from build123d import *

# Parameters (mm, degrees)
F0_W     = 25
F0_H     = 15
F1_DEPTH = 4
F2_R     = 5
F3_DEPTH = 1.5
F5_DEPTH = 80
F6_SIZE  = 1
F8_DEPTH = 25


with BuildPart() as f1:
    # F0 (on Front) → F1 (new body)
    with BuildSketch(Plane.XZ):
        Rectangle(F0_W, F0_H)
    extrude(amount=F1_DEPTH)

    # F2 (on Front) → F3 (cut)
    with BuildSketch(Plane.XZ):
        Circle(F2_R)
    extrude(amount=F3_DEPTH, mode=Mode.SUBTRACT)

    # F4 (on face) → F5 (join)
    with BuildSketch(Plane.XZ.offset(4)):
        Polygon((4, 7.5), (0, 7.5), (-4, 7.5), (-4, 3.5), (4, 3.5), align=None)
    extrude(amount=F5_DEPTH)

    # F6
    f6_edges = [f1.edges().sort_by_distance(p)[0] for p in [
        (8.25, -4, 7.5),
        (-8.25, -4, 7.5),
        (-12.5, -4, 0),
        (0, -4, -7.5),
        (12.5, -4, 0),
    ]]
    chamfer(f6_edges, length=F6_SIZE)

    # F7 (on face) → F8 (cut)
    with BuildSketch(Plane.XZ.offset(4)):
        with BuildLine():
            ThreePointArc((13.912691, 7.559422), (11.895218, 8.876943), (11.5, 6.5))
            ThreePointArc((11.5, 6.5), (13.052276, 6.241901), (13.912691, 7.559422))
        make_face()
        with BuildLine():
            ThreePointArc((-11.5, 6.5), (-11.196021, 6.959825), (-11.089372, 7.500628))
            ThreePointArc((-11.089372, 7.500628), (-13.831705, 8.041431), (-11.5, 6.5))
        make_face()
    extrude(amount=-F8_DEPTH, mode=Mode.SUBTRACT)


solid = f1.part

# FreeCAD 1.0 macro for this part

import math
import FreeCAD as App
import Part
import Sketcher

V = App.Vector
Q = App.Units.Quantity


def edges_at(feature, points):
    """Names of the edges that pass closest to the given points."""
    edges = feature.Shape.Edges
    near = lambda p: min(range(len(edges)), key=lambda i: edges[i].distToShape(Part.Vertex(*p))[0])
    return sorted({f"Edge{near(p) + 1}" for p in points})

doc = App.newDocument("Part")
body = doc.addObject("PartDesign::Body", "Body")

# Sketch on XZ plane
sketch1 = doc.addObject("Sketcher::SketchObject", "Sketch")
body.addObject(sketch1)
sketch1.AttachmentSupport = (doc.XZ_Plane, [""])
sketch1.MapMode = "FlatFace"
sketch1.addGeometry([
    Part.LineSegment(V(-12, 8, 0), V(-12, -8, 0)),
    Part.LineSegment(V(-12, -8, 0), V(12, -8, 0)),
    Part.LineSegment(V(12, -8, 0), V(12, 8, 0)),
    Part.LineSegment(V(12, 8, 0), V(-12, 8, 0)),
], False)
sketch1.addConstraint([
    Sketcher.Constraint("Coincident", 0, 2, 1, 1),
    Sketcher.Constraint("Coincident", 1, 2, 2, 1),
    Sketcher.Constraint("Coincident", 2, 2, 3, 1),
    Sketcher.Constraint("Coincident", 3, 2, 0, 1),
    Sketcher.Constraint("Vertical", 0),
    Sketcher.Constraint("Horizontal", 1),
    Sketcher.Constraint("Vertical", 2),
    Sketcher.Constraint("Horizontal", 3),
    Sketcher.Constraint("Symmetric", 0, 2, 2, 2, -1, 1),
    Sketcher.Constraint("DistanceX", 1, 1, 1, 2, Q("25 mm")),
    Sketcher.Constraint("DistanceY", 0, 2, 0, 1, Q("15 mm")),
])
pad1 = doc.addObject("PartDesign::Pad", "Pad")
body.addObject(pad1)
pad1.Profile = sketch1
pad1.Length = 4

# Sketch on XZ plane
sketch2 = doc.addObject("Sketcher::SketchObject", "Sketch001")
body.addObject(sketch2)
sketch2.AttachmentSupport = (doc.XZ_Plane, [""])
sketch2.MapMode = "FlatFace"
sketch2.addGeometry(Part.Circle(V(0, 0, 0), V(0, 0, 1), 5), False)
sketch2.addConstraint([
    Sketcher.Constraint("Coincident", 0, 3, -1, 1),
    Sketcher.Constraint("Diameter", 0, Q("10 mm")),
])
pocket1 = doc.addObject("PartDesign::Pocket", "Pocket")
body.addObject(pocket1)
pocket1.Profile = sketch2
pocket1.Length = 1.5
pocket1.Reversed = True

# Sketch on XZ plane
sketch3 = doc.addObject("Sketcher::SketchObject", "Sketch002")
body.addObject(sketch3)
sketch3.AttachmentSupport = (doc.XZ_Plane, [""])
sketch3.MapMode = "FlatFace"
sketch3.AttachmentOffset = App.Placement(V(0, 0, 4), App.Rotation())
sketch3.addGeometry([
    Part.LineSegment(V(4, 7.5, 0), V(-4, 7.5, 0)),
    Part.LineSegment(V(-4, 7.5, 0), V(-4, 3.5, 0)),
    Part.LineSegment(V(-4, 3.5, 0), V(4, 3.5, 0)),
    Part.LineSegment(V(4, 3.5, 0), V(4, 7.5, 0)),
], False)
sketch3.addConstraint([
    Sketcher.Constraint("Coincident", 0, 2, 1, 1),
    Sketcher.Constraint("Coincident", 1, 2, 2, 1),
    Sketcher.Constraint("Coincident", 2, 2, 3, 1),
    Sketcher.Constraint("Coincident", 3, 2, 0, 1),
    Sketcher.Constraint("Horizontal", 0),
    Sketcher.Constraint("Vertical", 1),
    Sketcher.Constraint("Horizontal", 2),
    Sketcher.Constraint("Vertical", 3),
    Sketcher.Constraint("DistanceX", 0, 2, 0, 1, Q("8 mm")),
    Sketcher.Constraint("DistanceY", 1, 2, 1, 1, Q("4 mm")),
    Sketcher.Constraint("DistanceX", 0, 2, -1, 1, Q("4 mm")),
    Sketcher.Constraint("DistanceY", -1, 1, 0, 2, Q("7.5 mm")),
])
pad2 = doc.addObject("PartDesign::Pad", "Pad001")
body.addObject(pad2)
pad2.Profile = sketch3
pad2.Length = 80
doc.recompute()

chamfer = doc.addObject("PartDesign::Chamfer", "Chamfer")
body.addObject(chamfer)
chamfer.Base = (pad2, edges_at(pad2, [
    (8.25, -4, 7.5),
    (-8.25, -4, 7.5),
    (-12.5, -4, 0),
    (0, -4, -7.5),
    (12.5, -4, 0),
]))
chamfer.Size = 1

# Sketch on XZ plane
sketch4 = doc.addObject("Sketcher::SketchObject", "Sketch003")
body.addObject(sketch4)
sketch4.AttachmentSupport = (doc.XZ_Plane, [""])
sketch4.MapMode = "FlatFace"
sketch4.AttachmentOffset = App.Placement(V(0, 0, 4), App.Rotation())
sketch4.addGeometry([
    Part.ArcOfCircle(Part.Circle(V(12.5, 7.6, 0), V(0, 0, 1), 1.4), math.radians(0), math.radians(227)),
    Part.ArcOfCircle(Part.Circle(V(12.5, 7.6, 0), V(0, 0, 1), 1.4), math.radians(-133), math.radians(0)),
    Part.ArcOfCircle(Part.Circle(V(-12.5, 7.5, 0), V(0, 0, 1), 1.4), math.radians(-45), math.radians(0)),
    Part.ArcOfCircle(Part.Circle(V(-12.5, 7.5, 0), V(0, 0, 1), 1.4), math.radians(0), math.radians(315)),
], False)
sketch4.addConstraint([
    Sketcher.Constraint("Tangent", 0, 1, 1, 2),
    Sketcher.Constraint("Coincident", 1, 1, 0, 2),
    Sketcher.Constraint("Tangent", 2, 1, 3, 2),
    Sketcher.Constraint("Coincident", 3, 1, 2, 2),
    Sketcher.Constraint("Symmetric", 1, 1, 2, 1, -2),
    Sketcher.Constraint("Horizontal", 1, 3, 0, 1),
    Sketcher.Constraint("Horizontal", 2, 3, 3, 1),
    Sketcher.Constraint("DistanceX", 2, 1, 1, 1, Q("23 mm")),
    Sketcher.Constraint("DistanceY", -1, 1, 1, 1, Q("6.5 mm")),
    Sketcher.Constraint("Radius", 3, Q("1.424491 mm")),
    Sketcher.Constraint("Radius", 0, Q("1.438944 mm")),
    Sketcher.Constraint("DistanceY", -1, 1, 0, 3, Q("7.559422 mm")),
    Sketcher.Constraint("DistanceX", 2, 3, -1, 1, Q("12.513859 mm")),
])
pocket2 = doc.addObject("PartDesign::Pocket", "Pocket001")
body.addObject(pocket2)
pocket2.Profile = sketch4
pocket2.Length = 25

doc.recompute()
